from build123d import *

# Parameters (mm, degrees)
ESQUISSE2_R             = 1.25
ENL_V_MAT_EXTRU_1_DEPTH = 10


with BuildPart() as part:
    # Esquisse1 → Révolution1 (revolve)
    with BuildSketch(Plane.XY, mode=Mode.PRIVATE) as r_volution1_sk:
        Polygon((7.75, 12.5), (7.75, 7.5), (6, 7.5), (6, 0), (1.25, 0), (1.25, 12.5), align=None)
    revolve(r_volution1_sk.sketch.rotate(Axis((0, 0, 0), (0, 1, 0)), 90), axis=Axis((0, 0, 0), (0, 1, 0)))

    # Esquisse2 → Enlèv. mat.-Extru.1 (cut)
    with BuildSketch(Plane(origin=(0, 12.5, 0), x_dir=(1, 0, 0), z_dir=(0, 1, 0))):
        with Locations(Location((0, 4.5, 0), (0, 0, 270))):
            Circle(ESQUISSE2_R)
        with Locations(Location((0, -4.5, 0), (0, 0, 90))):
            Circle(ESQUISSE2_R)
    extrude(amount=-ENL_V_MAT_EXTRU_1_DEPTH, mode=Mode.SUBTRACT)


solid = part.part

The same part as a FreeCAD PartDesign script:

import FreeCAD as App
import Part
import Sketcher

V = App.Vector
Q = App.Units.Quantity

doc = App.newDocument("Part")
body = doc.addObject("PartDesign::Body", "Body")

# Sketch on XY plane
sketch1 = body.newObject("Sketcher::SketchObject", "Sketch")
sketch1.AttachmentSupport = (doc.getObject("XY_Plane"), [""])
sketch1.MapMode = "FlatFace"
sketch1.addGeometry([
    Part.LineSegment(V(7.75, 7.5, 0), V(7.75, 12.5, 0)),  # 0
    Part.LineSegment(V(7.75, 12.5, 0), V(1.25, 12.5, 0)),  # 1
    Part.LineSegment(V(1.25, 12.5, 0), V(1.25, 0, 0)),  # 2
    Part.LineSegment(V(1.25, 0, 0), V(6, 0, 0)),  # 3
    Part.LineSegment(V(6, 0, 0), V(6, 7.5, 0)),  # 4
    Part.LineSegment(V(6, 7.5, 0), V(7.75, 7.5, 0)),  # 5
], False)
sketch1.addConstraint([
    Sketcher.Constraint("Coincident", 0, 2, 1, 1),
    Sketcher.Constraint("Coincident", 1, 2, 2, 1),
    Sketcher.Constraint("Coincident", 2, 2, 3, 1),
    Sketcher.Constraint("Coincident", 3, 2, 4, 1),
    Sketcher.Constraint("Coincident", 4, 2, 5, 1),
    Sketcher.Constraint("Coincident", 5, 2, 0, 1),
    Sketcher.Constraint("Vertical", 0),
    Sketcher.Constraint("Horizontal", 1),
    Sketcher.Constraint("Vertical", 2),
    Sketcher.Constraint("Horizontal", 3),
    Sketcher.Constraint("Vertical", 4),
    Sketcher.Constraint("Horizontal", 5),
    Sketcher.Constraint("PointOnObject", 2, 2, -1),
    Sketcher.Constraint("DistanceY", 0, 1, 0, 2, Q("5 mm")),
    Sketcher.Constraint("DistanceX", 1, 2, 1, 1, Q("6.5 mm")),
    Sketcher.Constraint("DistanceY", 2, 2, 2, 1, Q("12.5 mm")),
    Sketcher.Constraint("DistanceX", -1, 1, 3, 2, Q("6 mm")),
    Sketcher.Constraint("DistanceX", 3, 1, 3, 2, Q("4.75 mm")),
])
revolution = body.newObject("PartDesign::Revolution", "Revolution")
revolution.Profile = sketch1
revolution.ReferenceAxis = (sketch1, ["V_Axis"])
revolution.Angle = 360

# Sketch on XZ plane
sketch2 = body.newObject("Sketcher::SketchObject", "Sketch001")
sketch2.AttachmentSupport = (doc.getObject("XZ_Plane"), [""])
sketch2.MapMode = "FlatFace"
sketch2.AttachmentOffset = App.Placement(V(0, 0, -12.5), App.Rotation())
sketch2.addGeometry([
    Part.Circle(V(0, -4.5, 0), V(0, 0, 1), 1.25),
    Part.Circle(V(0, 4.5, 0), V(0, 0, 1), 1.25),
], False)
sketch2.addConstraint([
    Sketcher.Constraint("Equal", 0, 1),
    Sketcher.Constraint("Symmetric", 0, 3, 1, 3, -1, 1),
    Sketcher.Constraint("PointOnObject", 0, 3, -2),
    Sketcher.Constraint("Diameter", 0, Q("2.5 mm")),
    Sketcher.Constraint("DistanceY", 0, 3, 1, 3, Q("9 mm")),
])
pocket1 = body.newObject("PartDesign::Pocket", "Pocket")
pocket1.Profile = sketch2
pocket1.Length = 10
pocket1.Reversed = True

doc.recompute()
